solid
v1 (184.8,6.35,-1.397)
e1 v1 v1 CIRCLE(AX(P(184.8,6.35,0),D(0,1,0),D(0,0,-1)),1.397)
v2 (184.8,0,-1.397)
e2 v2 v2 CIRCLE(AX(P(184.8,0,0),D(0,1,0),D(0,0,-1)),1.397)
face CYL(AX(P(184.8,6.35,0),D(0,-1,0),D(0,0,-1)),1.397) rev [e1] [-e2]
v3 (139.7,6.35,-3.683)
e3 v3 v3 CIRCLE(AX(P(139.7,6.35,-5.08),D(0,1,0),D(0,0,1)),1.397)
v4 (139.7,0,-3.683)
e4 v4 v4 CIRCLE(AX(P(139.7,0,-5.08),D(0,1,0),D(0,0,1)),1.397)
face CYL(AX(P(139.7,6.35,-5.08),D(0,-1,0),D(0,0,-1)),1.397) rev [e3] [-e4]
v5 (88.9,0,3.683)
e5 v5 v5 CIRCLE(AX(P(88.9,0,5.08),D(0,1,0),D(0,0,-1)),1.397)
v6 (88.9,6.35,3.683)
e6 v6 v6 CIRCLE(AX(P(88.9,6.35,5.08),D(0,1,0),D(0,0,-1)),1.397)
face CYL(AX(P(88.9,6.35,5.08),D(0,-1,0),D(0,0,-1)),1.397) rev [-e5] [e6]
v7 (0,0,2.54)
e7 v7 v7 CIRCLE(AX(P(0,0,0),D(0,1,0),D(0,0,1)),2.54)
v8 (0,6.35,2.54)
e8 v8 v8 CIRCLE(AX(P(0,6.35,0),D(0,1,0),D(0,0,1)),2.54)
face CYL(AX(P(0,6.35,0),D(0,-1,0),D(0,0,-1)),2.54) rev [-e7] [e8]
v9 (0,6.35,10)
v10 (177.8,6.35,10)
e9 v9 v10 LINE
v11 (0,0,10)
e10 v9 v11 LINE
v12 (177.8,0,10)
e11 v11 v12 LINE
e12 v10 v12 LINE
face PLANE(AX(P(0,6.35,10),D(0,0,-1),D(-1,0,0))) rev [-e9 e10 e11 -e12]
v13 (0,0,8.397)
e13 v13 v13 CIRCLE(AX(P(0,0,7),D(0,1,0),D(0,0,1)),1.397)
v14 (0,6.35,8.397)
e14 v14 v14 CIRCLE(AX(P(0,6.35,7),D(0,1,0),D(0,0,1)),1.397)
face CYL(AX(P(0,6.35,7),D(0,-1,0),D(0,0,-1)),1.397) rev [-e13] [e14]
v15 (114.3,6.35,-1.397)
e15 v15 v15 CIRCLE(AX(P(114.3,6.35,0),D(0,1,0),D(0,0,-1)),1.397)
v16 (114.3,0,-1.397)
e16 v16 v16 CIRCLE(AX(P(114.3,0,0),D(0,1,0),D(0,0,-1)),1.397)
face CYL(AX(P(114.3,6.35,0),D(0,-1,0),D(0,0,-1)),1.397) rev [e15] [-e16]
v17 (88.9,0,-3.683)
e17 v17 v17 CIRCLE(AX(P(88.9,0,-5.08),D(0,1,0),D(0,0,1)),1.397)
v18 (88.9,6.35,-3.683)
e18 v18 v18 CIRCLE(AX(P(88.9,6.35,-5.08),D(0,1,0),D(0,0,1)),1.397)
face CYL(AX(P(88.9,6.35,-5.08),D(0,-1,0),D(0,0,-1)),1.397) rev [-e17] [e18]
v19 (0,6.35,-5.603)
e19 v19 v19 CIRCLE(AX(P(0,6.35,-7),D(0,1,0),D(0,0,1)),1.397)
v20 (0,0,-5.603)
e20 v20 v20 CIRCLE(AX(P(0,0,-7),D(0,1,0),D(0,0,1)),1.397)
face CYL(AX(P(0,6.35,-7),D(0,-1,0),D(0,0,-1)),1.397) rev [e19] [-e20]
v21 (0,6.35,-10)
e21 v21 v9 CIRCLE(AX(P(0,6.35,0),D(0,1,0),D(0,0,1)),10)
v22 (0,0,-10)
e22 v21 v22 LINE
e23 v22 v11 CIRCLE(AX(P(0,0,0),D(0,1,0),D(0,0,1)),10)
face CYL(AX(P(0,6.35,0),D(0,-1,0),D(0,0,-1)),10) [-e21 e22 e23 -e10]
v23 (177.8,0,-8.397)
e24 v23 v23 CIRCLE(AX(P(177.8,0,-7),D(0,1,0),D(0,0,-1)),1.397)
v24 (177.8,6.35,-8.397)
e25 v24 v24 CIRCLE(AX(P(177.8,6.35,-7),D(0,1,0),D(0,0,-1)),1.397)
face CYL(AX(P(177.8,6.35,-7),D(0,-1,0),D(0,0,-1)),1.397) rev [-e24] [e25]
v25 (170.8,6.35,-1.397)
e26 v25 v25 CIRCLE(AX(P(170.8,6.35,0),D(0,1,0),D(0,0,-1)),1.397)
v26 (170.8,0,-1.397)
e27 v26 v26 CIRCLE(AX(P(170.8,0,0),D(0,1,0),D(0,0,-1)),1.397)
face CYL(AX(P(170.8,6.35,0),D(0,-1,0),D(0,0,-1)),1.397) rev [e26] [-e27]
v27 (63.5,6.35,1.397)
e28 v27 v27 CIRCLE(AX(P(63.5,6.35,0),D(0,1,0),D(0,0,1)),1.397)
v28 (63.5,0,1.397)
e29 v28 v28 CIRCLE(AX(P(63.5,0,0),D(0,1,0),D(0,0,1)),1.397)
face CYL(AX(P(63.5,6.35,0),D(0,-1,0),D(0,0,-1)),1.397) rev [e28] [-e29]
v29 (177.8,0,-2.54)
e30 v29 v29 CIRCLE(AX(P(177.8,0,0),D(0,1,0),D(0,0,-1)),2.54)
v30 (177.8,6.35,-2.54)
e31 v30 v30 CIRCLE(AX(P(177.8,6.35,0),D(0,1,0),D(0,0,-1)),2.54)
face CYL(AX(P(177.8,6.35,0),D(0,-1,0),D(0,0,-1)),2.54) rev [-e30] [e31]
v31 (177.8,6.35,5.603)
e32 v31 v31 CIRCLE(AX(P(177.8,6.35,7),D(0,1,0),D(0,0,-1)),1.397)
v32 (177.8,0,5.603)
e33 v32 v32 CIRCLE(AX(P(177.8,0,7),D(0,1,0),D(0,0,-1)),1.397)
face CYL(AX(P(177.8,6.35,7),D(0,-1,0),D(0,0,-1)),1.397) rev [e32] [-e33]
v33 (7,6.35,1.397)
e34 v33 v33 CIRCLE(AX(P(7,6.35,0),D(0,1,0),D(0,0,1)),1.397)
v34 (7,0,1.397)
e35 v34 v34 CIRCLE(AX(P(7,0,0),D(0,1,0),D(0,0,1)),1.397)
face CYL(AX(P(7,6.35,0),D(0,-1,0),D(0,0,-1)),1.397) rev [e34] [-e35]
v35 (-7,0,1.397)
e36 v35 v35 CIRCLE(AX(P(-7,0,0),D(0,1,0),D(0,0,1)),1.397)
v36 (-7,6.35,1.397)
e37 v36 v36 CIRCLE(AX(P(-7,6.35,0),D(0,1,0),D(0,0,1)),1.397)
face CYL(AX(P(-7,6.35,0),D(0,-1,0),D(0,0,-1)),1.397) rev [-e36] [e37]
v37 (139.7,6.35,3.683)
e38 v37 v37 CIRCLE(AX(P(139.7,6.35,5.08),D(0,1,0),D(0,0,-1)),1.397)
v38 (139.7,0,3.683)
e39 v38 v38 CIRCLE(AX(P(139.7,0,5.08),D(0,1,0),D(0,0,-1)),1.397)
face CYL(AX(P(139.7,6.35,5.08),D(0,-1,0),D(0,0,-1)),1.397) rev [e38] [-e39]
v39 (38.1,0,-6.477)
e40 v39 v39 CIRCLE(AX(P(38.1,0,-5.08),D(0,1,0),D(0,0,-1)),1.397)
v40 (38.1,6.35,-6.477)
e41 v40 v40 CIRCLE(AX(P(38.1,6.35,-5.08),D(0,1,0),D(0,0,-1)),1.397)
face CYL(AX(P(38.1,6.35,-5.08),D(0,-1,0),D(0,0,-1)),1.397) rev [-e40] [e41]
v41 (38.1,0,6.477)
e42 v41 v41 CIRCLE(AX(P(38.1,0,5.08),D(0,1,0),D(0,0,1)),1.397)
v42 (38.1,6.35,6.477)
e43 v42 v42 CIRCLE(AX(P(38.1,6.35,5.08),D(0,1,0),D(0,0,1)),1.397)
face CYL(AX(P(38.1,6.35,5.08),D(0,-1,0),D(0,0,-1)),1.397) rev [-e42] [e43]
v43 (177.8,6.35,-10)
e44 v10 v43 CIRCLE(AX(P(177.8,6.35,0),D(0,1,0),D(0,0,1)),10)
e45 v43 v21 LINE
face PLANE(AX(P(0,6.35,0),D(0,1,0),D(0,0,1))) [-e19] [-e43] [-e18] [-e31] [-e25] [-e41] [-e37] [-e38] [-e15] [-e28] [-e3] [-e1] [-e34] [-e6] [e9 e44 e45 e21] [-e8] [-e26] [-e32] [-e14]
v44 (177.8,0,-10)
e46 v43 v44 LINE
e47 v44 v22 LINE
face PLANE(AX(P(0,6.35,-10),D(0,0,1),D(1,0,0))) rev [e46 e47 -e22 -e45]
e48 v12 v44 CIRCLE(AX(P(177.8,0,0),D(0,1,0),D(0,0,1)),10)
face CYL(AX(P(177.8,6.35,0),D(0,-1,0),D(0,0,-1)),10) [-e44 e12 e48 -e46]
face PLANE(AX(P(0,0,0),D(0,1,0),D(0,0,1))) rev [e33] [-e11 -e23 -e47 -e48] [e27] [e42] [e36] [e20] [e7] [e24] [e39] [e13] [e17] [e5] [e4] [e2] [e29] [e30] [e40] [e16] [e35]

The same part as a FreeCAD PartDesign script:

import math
import FreeCAD as App
import Part
import Sketcher

V = App.Vector
Q = App.Units.Quantity

doc = App.newDocument("Part")
body = doc.addObject("PartDesign::Body", "Body")

# Sketch on XZ plane
sketch1 = body.newObject("Sketcher::SketchObject", "Sketch")
sketch1.AttachmentSupport = (doc.getObject("XZ_Plane"), [""])
sketch1.MapMode = "FlatFace"
sketch1.addGeometry([
    Part.LineSegment(V(177.8, -10, 0), V(0, -10, 0)),  # 0
    Part.ArcOfCircle(Part.Circle(V(0, 0, 0), V(0, 0, 1), 10), math.radians(90), math.radians(270)),  # 1
    Part.LineSegment(V(0, 10, 0), V(177.8, 10, 0)),  # 2
    Part.ArcOfCircle(Part.Circle(V(177.8, 0, 0), V(0, 0, 1), 10), math.radians(-90), math.radians(90)),  # 3
    Part.Circle(V(177.8, 7, 0), V(0, 0, 1), 1.397),  # 4
    Part.Circle(V(139.7, 5.08, 0), V(0, 0, 1), 1.397),  # 5
    Part.Circle(V(88.9, 5.08, 0), V(0, 0, 1), 1.397),  # 6
    Part.Circle(V(0, 7, 0), V(0, 0, 1), 1.397),  # 7
    Part.Circle(V(38.1, 5.08, 0), V(0, 0, 1), 1.397),  # 8
    Part.Circle(V(184.8, 0, 0), V(0, 0, 1), 1.397),  # 9
    Part.Circle(V(177.8, 0, 0), V(0, 0, 1), 2.54),  # 10
    Part.Circle(V(170.8, 0, 0), V(0, 0, 1), 1.397),  # 11
    Part.Circle(V(114.3, 0, 0), V(0, 0, 1), 1.397),  # 12
    Part.Circle(V(139.7, -5.08, 0), V(0, 0, 1), 1.397),  # 13
    Part.Circle(V(177.8, -7, 0), V(0, 0, 1), 1.397),  # 14
    Part.Circle(V(63.5, 0, 0), V(0, 0, 1), 1.397),  # 15
    Part.Circle(V(7, 0, 0), V(0, 0, 1), 1.397),  # 16
    Part.Circle(V(0, 0, 0), V(0, 0, 1), 2.54),  # 17
    Part.Circle(V(-7, 0, 0), V(0, 0, 1), 1.397),  # 18
    Part.Circle(V(88.9, -5.08, 0), V(0, 0, 1), 1.397),  # 19
    Part.Circle(V(38.1, -5.08, 0), V(0, 0, 1), 1.397),  # 20
    Part.Circle(V(0, -7, 0), V(0, 0, 1), 1.397),  # 21
], False)
sketch1.addConstraint([
    Sketcher.Constraint("Tangent", 0, 2, 1, 2),
    Sketcher.Constraint("Tangent", 1, 1, 2, 1),
    Sketcher.Constraint("Tangent", 2, 2, 3, 2),
    Sketcher.Constraint("Tangent", 3, 1, 0, 1),
    Sketcher.Constraint("Horizontal", 0),
    Sketcher.Constraint("Horizontal", 2),
    Sketcher.Constraint("Coincident", 1, 3, -1, 1),
    Sketcher.Constraint("Coincident", 17, 3, -1, 1),
    Sketcher.Constraint("Coincident", 10, 3, 3, 3),
    Sketcher.Constraint("Equal", 4, 5),
    Sketcher.Constraint("Equal", 5, 6),
    Sketcher.Constraint("Equal", 6, 7),
    Sketcher.Constraint("Equal", 7, 8),
    Sketcher.Constraint("Equal", 8, 9),
    Sketcher.Constraint("Equal", 9, 11),
    Sketcher.Constraint("Equal", 11, 12),
    Sketcher.Constraint("Equal", 12, 13),
    Sketcher.Constraint("Equal", 13, 14),
    Sketcher.Constraint("Equal", 14, 15),
    Sketcher.Constraint("Equal", 15, 16),
    Sketcher.Constraint("Equal", 10, 17),
    Sketcher.Constraint("Equal", 16, 18),
    Sketcher.Constraint("Equal", 18, 19),
    Sketcher.Constraint("Equal", 19, 20),
    Sketcher.Constraint("Equal", 20, 21),
    Sketcher.Constraint("Symmetric", 16, 3, 18, 3, -1, 1),
    Sketcher.Constraint("Symmetric", 7, 3, 21, 3, -1, 1),
    Sketcher.Constraint("Symmetric", 5, 3, 13, 3, -1),
    Sketcher.Constraint("Symmetric", 4, 3, 14, 3, -1),
    Sketcher.Constraint("Symmetric", 6, 3, 19, 3, -1),
    Sketcher.Constraint("Symmetric", 8, 3, 20, 3, -1),
    Sketcher.Constraint("PointOnObject", 7, 3, -2),
    Sketcher.Constraint("PointOnObject", 9, 3, -1),
    Sketcher.Constraint("PointOnObject", 11, 3, -1),
    Sketcher.Constraint("PointOnObject", 12, 3, -1),
    Sketcher.Constraint("PointOnObject", 15, 3, -1),
    Sketcher.Constraint("PointOnObject", 16, 3, -1),
    Sketcher.Constraint("Horizontal", 5, 3, 6, 3),
    Sketcher.Constraint("Horizontal", 4, 3, 7, 3),
    Sketcher.Constraint("Horizontal", 6, 3, 8, 3),
    Sketcher.Constraint("Vertical", 3, 3, 4, 3),
    Sketcher.Constraint("Diameter", 10, Q("0.2 in")),
    Sketcher.Constraint("Diameter", 4, Q("0.11 in")),
    Sketcher.Constraint("DistanceX", 0, 2, 0, 1, Q("7 in")),
    Sketcher.Constraint("DistanceX", 6, 3, 5, 3, Q("2 in")),
    Sketcher.Constraint("DistanceX", 8, 3, 6, 3, Q("2 in")),
    Sketcher.Constraint("DistanceX", 12, 3, 5, 3, Q("1 in")),
    Sketcher.Constraint("DistanceX", 8, 3, 15, 3, Q("1 in")),
    Sketcher.Constraint("DistanceX", -1, 1, 5, 3, Q("5.5 in")),
    Sketcher.Constraint("DistanceY", -1, 1, 5, 3, Q("0.2 in")),
    Sketcher.Constraint("Radius", 1, Q("10 mm")),
    Sketcher.Constraint("DistanceY", -1, 1, 4, 3, Q("7 mm")),
    Sketcher.Constraint("DistanceX", -1, 1, 9, 3, Q("184.8 mm")),
    Sketcher.Constraint("DistanceX", -1, 1, 11, 3, Q("170.8 mm")),
    Sketcher.Constraint("DistanceX", -1, 1, 16, 3, Q("7 mm")),
])
pad1 = body.newObject("PartDesign::Pad", "Pad")
pad1.Profile = sketch1
pad1.Length = Q("0.25 in")
pad1.Reversed = True

doc.recompute()
